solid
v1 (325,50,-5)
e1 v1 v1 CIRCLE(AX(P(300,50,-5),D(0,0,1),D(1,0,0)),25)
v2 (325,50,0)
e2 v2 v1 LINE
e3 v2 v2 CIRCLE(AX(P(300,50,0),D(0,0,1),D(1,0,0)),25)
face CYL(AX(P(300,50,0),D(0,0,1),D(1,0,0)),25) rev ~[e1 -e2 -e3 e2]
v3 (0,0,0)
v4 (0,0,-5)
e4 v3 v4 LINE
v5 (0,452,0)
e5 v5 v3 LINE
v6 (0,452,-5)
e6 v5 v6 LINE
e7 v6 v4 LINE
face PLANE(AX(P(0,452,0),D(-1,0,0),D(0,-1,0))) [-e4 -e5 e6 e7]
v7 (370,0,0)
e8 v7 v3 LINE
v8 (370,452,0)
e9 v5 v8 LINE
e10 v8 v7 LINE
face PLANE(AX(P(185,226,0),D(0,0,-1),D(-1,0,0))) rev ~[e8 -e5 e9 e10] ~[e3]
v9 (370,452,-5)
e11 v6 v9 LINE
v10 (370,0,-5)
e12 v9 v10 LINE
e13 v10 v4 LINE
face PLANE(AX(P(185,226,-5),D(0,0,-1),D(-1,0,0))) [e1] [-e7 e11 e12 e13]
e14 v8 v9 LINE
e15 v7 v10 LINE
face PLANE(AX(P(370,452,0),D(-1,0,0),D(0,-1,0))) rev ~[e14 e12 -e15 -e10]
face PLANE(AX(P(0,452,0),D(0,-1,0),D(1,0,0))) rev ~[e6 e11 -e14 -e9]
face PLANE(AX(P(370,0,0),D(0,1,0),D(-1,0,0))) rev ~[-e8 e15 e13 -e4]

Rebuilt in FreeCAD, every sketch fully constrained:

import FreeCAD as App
import Part
import Sketcher
from FreeCAD import Vector
Q = App.Units.Quantity


def add_polygon(sketch, points):
    """Adds a closed chain of lines whose ends are joined by coincident constraints."""
    first, n = sketch.GeometryCount, len(points)
    for a, b in zip(points, points[1:] + points[:1]):
        sketch.addGeometry(Part.LineSegment(App.Vector(*a, 0), App.Vector(*b, 0)), False)
    for i in range(n):
        sketch.addConstraint(Sketcher.Constraint("Coincident", first + i, 2, first + (i + 1) % n, 1))

doc = App.newDocument("Part")
body = doc.addObject("PartDesign::Body", "Body")

sketch1 = doc.addObject("Sketcher::SketchObject", "Sketch")
body.addObject(sketch1)
sketch1.AttachmentSupport = (doc.XY_Plane, [""])
sketch1.MapMode = "FlatFace"
add_polygon(sketch1, [(0, 452), (0, 0), (370, 0), (370, 452)])
sketch1.addConstraint(Sketcher.Constraint("Vertical", 0))
sketch1.addConstraint(Sketcher.Constraint("Horizontal", 1))
sketch1.addConstraint(Sketcher.Constraint("Vertical", 2))
sketch1.addConstraint(Sketcher.Constraint("Horizontal", 3))
sketch1.addConstraint(Sketcher.Constraint("Coincident", 0, 2, -1, 1))
sketch1.addConstraint(Sketcher.Constraint("DistanceX", 1, 1, 1, 2, Q("370 mm")))
sketch1.addConstraint(Sketcher.Constraint("DistanceY", 0, 2, 0, 1, Q("452 mm")))
pad1 = doc.addObject("PartDesign::Pad", "Pad")
body.addObject(pad1)
pad1.Profile = sketch1
pad1.Length = 5
pad1.Reversed = True

sketch2 = doc.addObject("Sketcher::SketchObject", "Sketch001")
body.addObject(sketch2)
sketch2.AttachmentSupport = (doc.XY_Plane, [""])
sketch2.MapMode = "FlatFace"
sketch2.addGeometry(Part.Circle(Vector(300, 50, 0), Vector(0, 0, 1), 25), False)
sketch2.addConstraint(Sketcher.Constraint("Diameter", 0, Q("50 mm")))
sketch2.addConstraint(Sketcher.Constraint("DistanceX", -1, 1, 0, 3, Q("300 mm")))
sketch2.addConstraint(Sketcher.Constraint("DistanceY", -1, 1, 0, 3, Q("50 mm")))
pocket1 = doc.addObject("PartDesign::Pocket", "Pocket")
body.addObject(pocket1)
pocket1.Profile = sketch2
pocket1.Type = "ThroughAll"

doc.recompute()
